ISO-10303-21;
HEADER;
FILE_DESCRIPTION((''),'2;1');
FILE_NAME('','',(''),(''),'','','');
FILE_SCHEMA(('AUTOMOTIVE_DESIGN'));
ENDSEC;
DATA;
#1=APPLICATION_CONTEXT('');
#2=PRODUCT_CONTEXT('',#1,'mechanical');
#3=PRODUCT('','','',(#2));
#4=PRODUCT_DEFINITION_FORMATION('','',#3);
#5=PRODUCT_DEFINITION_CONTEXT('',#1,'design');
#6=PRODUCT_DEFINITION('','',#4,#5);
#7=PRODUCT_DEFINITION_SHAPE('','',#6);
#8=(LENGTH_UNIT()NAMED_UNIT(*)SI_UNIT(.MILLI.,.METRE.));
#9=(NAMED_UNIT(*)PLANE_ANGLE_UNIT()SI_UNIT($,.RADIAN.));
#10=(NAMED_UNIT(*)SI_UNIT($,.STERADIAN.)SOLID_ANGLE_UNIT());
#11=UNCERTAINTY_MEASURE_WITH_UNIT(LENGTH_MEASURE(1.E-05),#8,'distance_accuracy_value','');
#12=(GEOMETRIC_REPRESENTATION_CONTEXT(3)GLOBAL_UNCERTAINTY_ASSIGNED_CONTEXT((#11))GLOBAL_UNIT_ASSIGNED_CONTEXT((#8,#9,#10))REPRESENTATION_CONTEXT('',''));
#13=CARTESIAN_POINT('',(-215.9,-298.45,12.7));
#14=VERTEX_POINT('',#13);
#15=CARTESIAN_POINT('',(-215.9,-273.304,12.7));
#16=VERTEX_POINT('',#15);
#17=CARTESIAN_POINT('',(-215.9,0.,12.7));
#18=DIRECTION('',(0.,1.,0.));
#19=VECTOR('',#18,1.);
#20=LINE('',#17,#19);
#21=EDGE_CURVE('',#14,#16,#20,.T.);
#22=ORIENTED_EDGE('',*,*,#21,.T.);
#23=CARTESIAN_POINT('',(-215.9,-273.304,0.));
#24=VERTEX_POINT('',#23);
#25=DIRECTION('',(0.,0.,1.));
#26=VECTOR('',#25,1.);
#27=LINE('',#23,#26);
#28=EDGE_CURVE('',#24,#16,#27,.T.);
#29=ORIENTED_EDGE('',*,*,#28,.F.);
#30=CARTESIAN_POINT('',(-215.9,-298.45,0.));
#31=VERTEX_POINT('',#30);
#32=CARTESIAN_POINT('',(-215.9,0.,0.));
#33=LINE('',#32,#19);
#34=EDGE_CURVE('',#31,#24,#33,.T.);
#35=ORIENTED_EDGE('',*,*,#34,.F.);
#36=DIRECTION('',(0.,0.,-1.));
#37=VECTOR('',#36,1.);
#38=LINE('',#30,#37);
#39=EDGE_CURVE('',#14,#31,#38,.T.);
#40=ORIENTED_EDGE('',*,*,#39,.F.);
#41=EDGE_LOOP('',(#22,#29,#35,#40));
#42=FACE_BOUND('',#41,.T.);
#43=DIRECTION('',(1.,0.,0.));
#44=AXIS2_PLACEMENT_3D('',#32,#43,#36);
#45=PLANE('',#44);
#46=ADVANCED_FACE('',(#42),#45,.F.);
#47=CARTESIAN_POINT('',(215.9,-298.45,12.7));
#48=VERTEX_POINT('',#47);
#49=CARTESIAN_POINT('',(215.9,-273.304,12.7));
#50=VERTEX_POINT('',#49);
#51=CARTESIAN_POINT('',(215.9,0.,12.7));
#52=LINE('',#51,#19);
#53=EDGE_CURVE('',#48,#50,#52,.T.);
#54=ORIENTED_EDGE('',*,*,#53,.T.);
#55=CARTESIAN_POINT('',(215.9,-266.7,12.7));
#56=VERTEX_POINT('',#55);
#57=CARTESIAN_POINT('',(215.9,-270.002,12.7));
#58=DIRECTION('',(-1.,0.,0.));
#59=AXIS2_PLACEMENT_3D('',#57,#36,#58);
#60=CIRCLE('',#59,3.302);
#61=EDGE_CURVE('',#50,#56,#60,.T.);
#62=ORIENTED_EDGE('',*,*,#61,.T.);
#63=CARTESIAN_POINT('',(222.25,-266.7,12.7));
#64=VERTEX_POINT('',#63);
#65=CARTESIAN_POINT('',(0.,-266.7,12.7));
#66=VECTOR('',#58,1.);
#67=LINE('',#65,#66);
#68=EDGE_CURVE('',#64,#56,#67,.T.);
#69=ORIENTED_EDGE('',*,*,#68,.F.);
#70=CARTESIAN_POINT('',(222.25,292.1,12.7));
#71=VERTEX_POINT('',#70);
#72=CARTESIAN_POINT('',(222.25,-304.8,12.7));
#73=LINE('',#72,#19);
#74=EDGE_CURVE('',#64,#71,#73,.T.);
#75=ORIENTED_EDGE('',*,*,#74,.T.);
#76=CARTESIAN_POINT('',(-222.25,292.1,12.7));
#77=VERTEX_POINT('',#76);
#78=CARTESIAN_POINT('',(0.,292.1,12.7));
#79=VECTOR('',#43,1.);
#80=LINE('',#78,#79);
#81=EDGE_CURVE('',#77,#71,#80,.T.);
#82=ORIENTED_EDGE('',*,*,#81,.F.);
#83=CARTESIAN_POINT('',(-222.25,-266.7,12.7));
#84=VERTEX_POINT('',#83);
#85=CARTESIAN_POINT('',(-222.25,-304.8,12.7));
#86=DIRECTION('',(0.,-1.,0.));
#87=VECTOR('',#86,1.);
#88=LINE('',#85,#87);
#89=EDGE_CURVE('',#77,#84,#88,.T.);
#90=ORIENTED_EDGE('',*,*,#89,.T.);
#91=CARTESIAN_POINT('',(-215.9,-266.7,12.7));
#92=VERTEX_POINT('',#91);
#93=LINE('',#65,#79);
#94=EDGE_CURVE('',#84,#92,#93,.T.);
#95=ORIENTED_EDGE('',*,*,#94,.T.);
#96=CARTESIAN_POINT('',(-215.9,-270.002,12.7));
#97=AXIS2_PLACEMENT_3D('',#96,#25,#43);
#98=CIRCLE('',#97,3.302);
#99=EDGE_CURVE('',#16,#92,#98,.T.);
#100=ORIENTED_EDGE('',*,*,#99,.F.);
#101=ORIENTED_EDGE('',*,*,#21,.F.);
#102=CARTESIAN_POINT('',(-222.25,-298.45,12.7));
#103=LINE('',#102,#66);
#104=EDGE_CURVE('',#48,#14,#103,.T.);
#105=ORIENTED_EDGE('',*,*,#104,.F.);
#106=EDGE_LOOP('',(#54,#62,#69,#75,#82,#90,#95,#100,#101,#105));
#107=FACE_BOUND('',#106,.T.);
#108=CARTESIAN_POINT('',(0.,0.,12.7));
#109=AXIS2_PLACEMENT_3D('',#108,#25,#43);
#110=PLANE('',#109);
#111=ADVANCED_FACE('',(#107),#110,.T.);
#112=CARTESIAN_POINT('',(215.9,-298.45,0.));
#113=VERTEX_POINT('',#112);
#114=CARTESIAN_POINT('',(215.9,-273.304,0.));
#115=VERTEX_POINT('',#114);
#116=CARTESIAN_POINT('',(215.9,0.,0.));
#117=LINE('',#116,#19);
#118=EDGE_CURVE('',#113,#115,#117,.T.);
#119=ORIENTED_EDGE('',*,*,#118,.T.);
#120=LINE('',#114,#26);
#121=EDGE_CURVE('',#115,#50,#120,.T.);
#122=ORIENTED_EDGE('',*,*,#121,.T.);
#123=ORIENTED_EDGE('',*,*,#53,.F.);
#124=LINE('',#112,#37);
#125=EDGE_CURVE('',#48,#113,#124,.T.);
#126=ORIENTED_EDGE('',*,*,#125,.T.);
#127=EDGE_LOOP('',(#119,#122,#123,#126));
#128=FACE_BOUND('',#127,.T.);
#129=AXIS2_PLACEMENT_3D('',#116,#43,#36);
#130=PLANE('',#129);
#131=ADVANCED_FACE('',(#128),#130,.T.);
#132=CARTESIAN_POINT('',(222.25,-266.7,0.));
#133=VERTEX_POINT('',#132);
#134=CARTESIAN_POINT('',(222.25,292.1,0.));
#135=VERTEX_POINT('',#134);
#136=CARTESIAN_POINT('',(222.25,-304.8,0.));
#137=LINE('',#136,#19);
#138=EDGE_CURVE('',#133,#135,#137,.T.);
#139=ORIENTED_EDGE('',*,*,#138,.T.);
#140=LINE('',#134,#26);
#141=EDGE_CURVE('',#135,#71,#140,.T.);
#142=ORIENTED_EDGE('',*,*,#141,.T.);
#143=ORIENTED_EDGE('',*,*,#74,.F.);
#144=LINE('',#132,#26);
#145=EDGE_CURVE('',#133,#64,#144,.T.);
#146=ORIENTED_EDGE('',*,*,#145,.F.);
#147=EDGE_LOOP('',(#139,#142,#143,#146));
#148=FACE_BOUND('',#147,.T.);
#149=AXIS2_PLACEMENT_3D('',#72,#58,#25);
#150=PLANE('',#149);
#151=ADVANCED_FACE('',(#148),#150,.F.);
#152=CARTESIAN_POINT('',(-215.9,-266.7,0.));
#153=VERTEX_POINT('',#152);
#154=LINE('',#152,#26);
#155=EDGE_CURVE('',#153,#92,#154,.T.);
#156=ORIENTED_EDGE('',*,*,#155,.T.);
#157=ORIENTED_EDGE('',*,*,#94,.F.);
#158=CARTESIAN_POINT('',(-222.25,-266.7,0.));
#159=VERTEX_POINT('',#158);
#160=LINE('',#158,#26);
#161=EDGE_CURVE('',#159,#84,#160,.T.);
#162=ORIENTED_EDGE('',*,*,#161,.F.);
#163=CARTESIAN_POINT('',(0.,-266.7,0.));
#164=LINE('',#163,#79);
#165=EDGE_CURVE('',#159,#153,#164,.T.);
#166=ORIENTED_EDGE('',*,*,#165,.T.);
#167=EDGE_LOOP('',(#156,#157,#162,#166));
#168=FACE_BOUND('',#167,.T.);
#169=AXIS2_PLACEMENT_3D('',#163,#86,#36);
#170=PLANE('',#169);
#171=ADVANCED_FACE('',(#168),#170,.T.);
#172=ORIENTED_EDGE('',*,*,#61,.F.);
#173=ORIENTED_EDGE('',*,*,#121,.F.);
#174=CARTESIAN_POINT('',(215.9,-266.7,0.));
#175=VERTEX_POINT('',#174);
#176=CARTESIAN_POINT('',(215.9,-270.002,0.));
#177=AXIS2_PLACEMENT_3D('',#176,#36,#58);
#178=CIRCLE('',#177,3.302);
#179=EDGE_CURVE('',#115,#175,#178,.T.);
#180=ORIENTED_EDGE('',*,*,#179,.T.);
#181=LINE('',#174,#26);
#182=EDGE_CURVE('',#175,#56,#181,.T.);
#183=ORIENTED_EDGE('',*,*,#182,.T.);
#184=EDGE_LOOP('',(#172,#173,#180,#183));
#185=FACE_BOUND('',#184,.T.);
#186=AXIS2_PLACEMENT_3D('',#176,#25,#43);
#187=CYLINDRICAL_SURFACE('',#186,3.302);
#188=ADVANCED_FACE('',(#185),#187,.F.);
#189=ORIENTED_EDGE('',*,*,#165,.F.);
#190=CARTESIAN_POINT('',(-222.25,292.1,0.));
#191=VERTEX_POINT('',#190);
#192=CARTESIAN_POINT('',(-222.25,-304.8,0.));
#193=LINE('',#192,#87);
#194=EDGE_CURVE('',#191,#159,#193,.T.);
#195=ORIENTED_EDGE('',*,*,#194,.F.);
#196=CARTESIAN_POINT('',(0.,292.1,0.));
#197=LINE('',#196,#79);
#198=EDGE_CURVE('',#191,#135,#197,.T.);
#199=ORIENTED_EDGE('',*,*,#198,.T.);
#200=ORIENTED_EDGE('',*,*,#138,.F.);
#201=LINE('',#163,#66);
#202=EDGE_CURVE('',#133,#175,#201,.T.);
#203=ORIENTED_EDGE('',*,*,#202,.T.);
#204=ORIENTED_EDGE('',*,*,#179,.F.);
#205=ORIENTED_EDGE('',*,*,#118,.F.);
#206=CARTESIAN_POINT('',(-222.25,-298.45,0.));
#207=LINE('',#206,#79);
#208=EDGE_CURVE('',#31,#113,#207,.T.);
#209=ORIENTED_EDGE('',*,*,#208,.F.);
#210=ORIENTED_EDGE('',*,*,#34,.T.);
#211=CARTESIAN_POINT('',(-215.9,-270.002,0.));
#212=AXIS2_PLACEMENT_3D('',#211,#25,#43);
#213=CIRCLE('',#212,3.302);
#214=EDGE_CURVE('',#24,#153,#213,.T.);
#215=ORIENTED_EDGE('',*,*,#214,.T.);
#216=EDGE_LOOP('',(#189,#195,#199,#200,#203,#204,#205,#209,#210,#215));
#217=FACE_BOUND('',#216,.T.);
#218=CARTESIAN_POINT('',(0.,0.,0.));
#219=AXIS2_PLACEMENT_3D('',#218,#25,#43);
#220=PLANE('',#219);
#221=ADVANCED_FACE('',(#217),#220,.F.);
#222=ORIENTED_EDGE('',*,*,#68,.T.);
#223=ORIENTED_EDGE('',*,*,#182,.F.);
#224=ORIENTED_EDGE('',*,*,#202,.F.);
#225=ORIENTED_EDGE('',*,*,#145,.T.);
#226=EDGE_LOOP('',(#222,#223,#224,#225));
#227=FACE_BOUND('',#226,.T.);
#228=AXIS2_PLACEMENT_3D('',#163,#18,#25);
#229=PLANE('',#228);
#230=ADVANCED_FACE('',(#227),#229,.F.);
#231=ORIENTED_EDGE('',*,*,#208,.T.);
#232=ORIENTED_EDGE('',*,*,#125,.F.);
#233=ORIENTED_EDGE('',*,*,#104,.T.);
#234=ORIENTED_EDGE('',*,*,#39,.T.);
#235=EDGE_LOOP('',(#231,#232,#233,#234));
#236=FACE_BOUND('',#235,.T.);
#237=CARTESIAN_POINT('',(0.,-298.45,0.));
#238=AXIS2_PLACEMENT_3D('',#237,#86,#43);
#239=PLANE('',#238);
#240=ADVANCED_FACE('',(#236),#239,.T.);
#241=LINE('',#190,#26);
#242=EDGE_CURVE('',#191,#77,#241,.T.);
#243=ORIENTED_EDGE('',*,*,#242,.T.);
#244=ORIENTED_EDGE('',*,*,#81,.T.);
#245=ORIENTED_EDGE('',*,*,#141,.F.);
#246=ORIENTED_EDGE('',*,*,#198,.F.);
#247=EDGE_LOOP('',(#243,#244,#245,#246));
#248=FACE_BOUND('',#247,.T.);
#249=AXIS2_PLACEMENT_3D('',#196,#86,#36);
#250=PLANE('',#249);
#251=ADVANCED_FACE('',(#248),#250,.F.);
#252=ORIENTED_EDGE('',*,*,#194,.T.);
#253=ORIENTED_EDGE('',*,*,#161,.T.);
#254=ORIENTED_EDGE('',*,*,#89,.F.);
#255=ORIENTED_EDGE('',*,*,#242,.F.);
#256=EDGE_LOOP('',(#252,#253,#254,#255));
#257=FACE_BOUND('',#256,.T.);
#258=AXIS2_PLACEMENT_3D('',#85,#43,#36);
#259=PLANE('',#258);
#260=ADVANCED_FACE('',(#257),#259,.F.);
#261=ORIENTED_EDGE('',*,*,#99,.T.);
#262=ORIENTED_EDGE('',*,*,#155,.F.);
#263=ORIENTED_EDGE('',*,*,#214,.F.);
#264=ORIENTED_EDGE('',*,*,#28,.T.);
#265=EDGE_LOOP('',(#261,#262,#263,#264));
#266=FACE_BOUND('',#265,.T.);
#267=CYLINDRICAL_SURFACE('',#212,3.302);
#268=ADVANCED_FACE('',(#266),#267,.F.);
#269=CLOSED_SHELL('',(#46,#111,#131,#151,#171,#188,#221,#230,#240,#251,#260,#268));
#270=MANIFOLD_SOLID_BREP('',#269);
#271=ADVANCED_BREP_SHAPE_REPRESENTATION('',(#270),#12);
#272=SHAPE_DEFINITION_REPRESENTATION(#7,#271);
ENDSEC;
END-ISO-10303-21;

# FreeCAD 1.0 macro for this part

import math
import FreeCAD as App
import Part
import Sketcher
Q = App.Units.Quantity

doc = App.newDocument("Part")
body = doc.addObject("PartDesign::Body", "Body")

# Sketch on XY plane
sketch1 = body.newObject("Sketcher::SketchObject", "Sketch")
sketch1.AttachmentSupport = (doc.getObject("XY_Plane"), [""])
sketch1.MapMode = "FlatFace"
sketch1.addGeometry([
    Part.LineSegment(App.Vector(-222, 305, 0), App.Vector(-222, -305, 0)),
    Part.LineSegment(App.Vector(-222, -305, 0), App.Vector(222, -305, 0)),
    Part.LineSegment(App.Vector(222, -305, 0), App.Vector(222, 305, 0)),
    Part.LineSegment(App.Vector(222, 305, 0), App.Vector(-222, 305, 0)),
], False)
sketch1.addConstraint([
    Sketcher.Constraint("Coincident", 0, 2, 1, 1),
    Sketcher.Constraint("Coincident", 1, 2, 2, 1),
    Sketcher.Constraint("Coincident", 2, 2, 3, 1),
    Sketcher.Constraint("Coincident", 3, 2, 0, 1),
    Sketcher.Constraint("Vertical", 0),
    Sketcher.Constraint("Horizontal", 1),
    Sketcher.Constraint("Vertical", 2),
    Sketcher.Constraint("Horizontal", 3),
    Sketcher.Constraint("Symmetric", 0, 2, 2, 2, -1, 1),
    Sketcher.Constraint("DistanceY", 0, 2, 0, 1, Q("24 in")),
    Sketcher.Constraint("DistanceX", 1, 1, 1, 2, Q("17.5 in")),
])
pad1 = body.newObject("PartDesign::Pad", "Pad")
pad1.Profile = sketch1
pad1.Length = Q("0.5 in")

# Sketch on XY plane
sketch2 = body.newObject("Sketcher::SketchObject", "Sketch001")
sketch2.AttachmentSupport = (doc.getObject("XY_Plane"), [""])
sketch2.MapMode = "FlatFace"
sketch2.AttachmentOffset = App.Placement(App.Vector(0, 0, 0.5 * 25.4), App.Rotation())
sketch2.addGeometry([
    Part.ArcOfCircle(Part.Circle(App.Vector(-187.2, 292.1, 0), App.Vector(0, 0, 1), 3.3), math.radians(180), math.radians(360)),  # 0
    Part.LineSegment(App.Vector(-183.9, 292.1, 0), App.Vector(-171.7, 292.1, 0)),  # 1
    Part.ArcOfCircle(Part.Circle(App.Vector(-168.4, 292.1, 0), App.Vector(0, 0, 1), 3.3), math.radians(180), math.radians(360)),  # 2
    Part.LineSegment(App.Vector(-165.1, 292.1, 0), App.Vector(-165.1, 304.8, 0)),  # 3
    Part.LineSegment(App.Vector(-165.1, 304.8, 0), App.Vector(-190.5, 304.8, 0)),  # 4
    Part.LineSegment(App.Vector(-190.5, 304.8, 0), App.Vector(-190.5, 292.1, 0)),  # 5
], False)
sketch2.addConstraint([
    Sketcher.Constraint("Coincident", 0, 2, 1, 1),
    Sketcher.Constraint("Coincident", 1, 2, 2, 1),
    Sketcher.Constraint("Tangent", 2, 2, 3, 1),
    Sketcher.Constraint("Coincident", 3, 2, 4, 1),
    Sketcher.Constraint("Coincident", 4, 2, 5, 1),
    Sketcher.Constraint("Tangent", 5, 2, 0, 1),
    Sketcher.Constraint("Horizontal", 1),
    Sketcher.Constraint("Vertical", 3),
    Sketcher.Constraint("Horizontal", 4),
    Sketcher.Constraint("Vertical", 5),
    Sketcher.Constraint("Equal", 0, 2),
    Sketcher.Constraint("Horizontal", 0, 3, 2, 3),
    Sketcher.Constraint("Horizontal", 2, 3, 0, 2),
    Sketcher.Constraint("DistanceX", 4, 2, 4, 1, Q("1 in")),
    Sketcher.Constraint("Radius", 0, Q("0.13 in")),
    Sketcher.Constraint("DistanceY", 3, 1, 3, 2, Q("0.5 in")),
    Sketcher.Constraint("DistanceY", -1, 1, 3, 2, Q("12 in")),
    Sketcher.Constraint("DistanceX", 2, 2, -1, 1, Q("6.5 in")),
])
pocket1 = body.newObject("PartDesign::Pocket", "Pocket")
pocket1.Profile = sketch2
pocket1.Type = "ThroughAll"
doc.recompute()

linearpattern = body.newObject("PartDesign::LinearPattern", "LinearPattern")
linearpattern.Originals = [pocket1]
linearpattern.Direction = (doc.getObject("X_Axis"), [""])
linearpattern.Mode = "offset"
linearpattern.Offset = Q("2 in")
linearpattern.Occurrences = 8
body.Tip = linearpattern

# Sketch on XY plane
sketch3 = body.newObject("Sketcher::SketchObject", "Sketch002")
sketch3.AttachmentSupport = (doc.getObject("XY_Plane"), [""])
sketch3.MapMode = "FlatFace"
sketch3.AttachmentOffset = App.Placement(App.Vector(0, 0, 0.5 * 25.4), App.Rotation())
sketch3.addGeometry([
    Part.ArcOfCircle(Part.Circle(App.Vector(-215.9, -270, 0), App.Vector(0, 0, 1), 3.3), math.radians(-90), math.radians(90)),  # 0
    Part.LineSegment(App.Vector(-215.9, -266.7, 0), App.Vector(-222.2, -266.7, 0)),  # 1
    Part.LineSegment(App.Vector(-222.2, -266.7, 0), App.Vector(-222.2, -304.8, 0)),  # 2
    Part.LineSegment(App.Vector(-222.2, -304.8, 0), App.Vector(-215.9, -304.8, 0)),  # 3
    Part.LineSegment(App.Vector(-215.9, -304.8, 0), App.Vector(-215.9, -273.3, 0)),  # 4
], False)
sketch3.addConstraint([
    Sketcher.Constraint("Tangent", 0, 2, 1, 1),
    Sketcher.Constraint("Coincident", 1, 2, 2, 1),
    Sketcher.Constraint("Coincident", 2, 2, 3, 1),
    Sketcher.Constraint("Coincident", 3, 2, 4, 1),
    Sketcher.Constraint("Coincident", 4, 2, 0, 1),
    Sketcher.Constraint("Horizontal", 1),
    Sketcher.Constraint("Vertical", 2),
    Sketcher.Constraint("Horizontal", 3),
    Sketcher.Constraint("Vertical", 4),
    Sketcher.Constraint("Vertical", 0, 2, 3, 2),
    Sketcher.Constraint("Radius", 0, Q("0.13 in")),
    Sketcher.Constraint("DistanceY", 2, 2, 2, 1, Q("1.5 in")),
    Sketcher.Constraint("DistanceY", 2, 2, -1, 1, Q("12 in")),
    Sketcher.Constraint("DistanceX", 1, 2, 1, 1, Q("0.25 in")),
    Sketcher.Constraint("DistanceX", 0, 3, -1, 1, Q("8.5 in")),
])
pocket2 = body.newObject("PartDesign::Pocket", "Pocket001")
pocket2.Profile = sketch3
pocket2.Type = "ThroughAll"
doc.recompute()

mirrored = body.newObject("PartDesign::Mirrored", "Mirrored")
mirrored.Originals = [pocket2]
mirrored.MirrorPlane = (doc.getObject("YZ_Plane"), [""])
body.Tip = mirrored

# Sketch on XY plane
sketch4 = body.newObject("Sketcher::SketchObject", "Sketch003")
sketch4.AttachmentSupport = (doc.getObject("XY_Plane"), [""])
sketch4.MapMode = "FlatFace"
sketch4.AttachmentOffset = App.Placement(App.Vector(0, 0, 0.5 * 25.4), App.Rotation())
sketch4.addGeometry([
    Part.LineSegment(App.Vector(-222, 305, 0), App.Vector(-222, 292, 0)),
    Part.LineSegment(App.Vector(-222, 292, 0), App.Vector(222, 292, 0)),
    Part.LineSegment(App.Vector(222, 292, 0), App.Vector(222, 305, 0)),
    Part.LineSegment(App.Vector(222, 305, 0), App.Vector(-222, 305, 0)),
], False)
sketch4.addConstraint([
    Sketcher.Constraint("Coincident", 0, 2, 1, 1),
    Sketcher.Constraint("Coincident", 1, 2, 2, 1),
    Sketcher.Constraint("Coincident", 2, 2, 3, 1),
    Sketcher.Constraint("Coincident", 3, 2, 0, 1),
    Sketcher.Constraint("Vertical", 0),
    Sketcher.Constraint("Horizontal", 1),
    Sketcher.Constraint("Vertical", 2),
    Sketcher.Constraint("Horizontal", 3),
    Sketcher.Constraint("DistanceX", 1, 1, 1, 2, Q("17.5 in")),
    Sketcher.Constraint("DistanceY", 0, 2, 0, 1, Q("0.5 in")),
    Sketcher.Constraint("DistanceY", -1, 1, 2, 2, Q("12 in")),
    Sketcher.Constraint("DistanceX", 0, 2, -1, 1, Q("8.75 in")),
])
pocket3 = body.newObject("PartDesign::Pocket", "Pocket002")
pocket3.Profile = sketch4
pocket3.Type = "ThroughAll"

# Sketch on XY plane
sketch5 = body.newObject("Sketcher::SketchObject", "Sketch004")
sketch5.AttachmentSupport = (doc.getObject("XY_Plane"), [""])
sketch5.MapMode = "FlatFace"
sketch5.AttachmentOffset = App.Placement(App.Vector(0, 0, 0.5 * 25.4), App.Rotation())
sketch5.addGeometry([
    Part.LineSegment(App.Vector(-222, 292, 0), App.Vector(-222, 274, 0)),
    Part.LineSegment(App.Vector(-222, 274, 0), App.Vector(222, 274, 0)),
    Part.LineSegment(App.Vector(222, 274, 0), App.Vector(222, 292, 0)),
    Part.LineSegment(App.Vector(222, 292, 0), App.Vector(-222, 292, 0)),
], False)
sketch5.addConstraint([
    Sketcher.Constraint("Coincident", 0, 2, 1, 1),
    Sketcher.Constraint("Coincident", 1, 2, 2, 1),
    Sketcher.Constraint("Coincident", 2, 2, 3, 1),
    Sketcher.Constraint("Coincident", 3, 2, 0, 1),
    Sketcher.Constraint("Vertical", 0),
    Sketcher.Constraint("Horizontal", 1),
    Sketcher.Constraint("Vertical", 2),
    Sketcher.Constraint("Horizontal", 3),
    Sketcher.Constraint("DistanceX", 1, 1, 1, 2, Q("17.5 in")),
    Sketcher.Constraint("DistanceY", -1, 1, 2, 2, Q("11.5 in")),
    Sketcher.Constraint("DistanceX", 0, 2, -1, 1, Q("8.75 in")),
    Sketcher.Constraint("DistanceY", 0, 2, 0, 1, Q("18.431929 mm")),
])
pad2 = body.newObject("PartDesign::Pad", "Pad001")
pad2.Profile = sketch5
pad2.Length = Q("0.5 in")
pad2.Reversed = True

# Sketch on XZ plane
sketch6 = body.newObject("Sketcher::SketchObject", "Sketch005")
sketch6.AttachmentSupport = (doc.getObject("XZ_Plane"), [""])
sketch6.MapMode = "FlatFace"
sketch6.AttachmentOffset = App.Placement(App.Vector(0, 0, 12 * 25.4), App.Rotation())
sketch6.addGeometry([
    Part.LineSegment(App.Vector(-222, 13, 0), App.Vector(-222, 0, 0)),
    Part.LineSegment(App.Vector(-222, 0, 0), App.Vector(222, 0, 0)),
    Part.LineSegment(App.Vector(222, 0, 0), App.Vector(222, 13, 0)),
    Part.LineSegment(App.Vector(222, 13, 0), App.Vector(-222, 13, 0)),
], False)
sketch6.addConstraint([
    Sketcher.Constraint("Coincident", 0, 2, 1, 1),
    Sketcher.Constraint("Coincident", 1, 2, 2, 1),
    Sketcher.Constraint("Coincident", 2, 2, 3, 1),
    Sketcher.Constraint("Coincident", 3, 2, 0, 1),
    Sketcher.Constraint("Vertical", 0),
    Sketcher.Constraint("Horizontal", 1),
    Sketcher.Constraint("Vertical", 2),
    Sketcher.Constraint("Horizontal", 3),
    Sketcher.Constraint("Symmetric", 0, 2, 1, 2, -1, 1),
    Sketcher.Constraint("DistanceX", 1, 1, 1, 2, Q("17.5 in")),
    Sketcher.Constraint("DistanceY", 0, 2, 0, 1, Q("0.5 in")),
])
pocket4 = body.newObject("PartDesign::Pocket", "Pocket003")
pocket4.Profile = sketch6
pocket4.Length = Q("0.25 in")

doc.recompute()
